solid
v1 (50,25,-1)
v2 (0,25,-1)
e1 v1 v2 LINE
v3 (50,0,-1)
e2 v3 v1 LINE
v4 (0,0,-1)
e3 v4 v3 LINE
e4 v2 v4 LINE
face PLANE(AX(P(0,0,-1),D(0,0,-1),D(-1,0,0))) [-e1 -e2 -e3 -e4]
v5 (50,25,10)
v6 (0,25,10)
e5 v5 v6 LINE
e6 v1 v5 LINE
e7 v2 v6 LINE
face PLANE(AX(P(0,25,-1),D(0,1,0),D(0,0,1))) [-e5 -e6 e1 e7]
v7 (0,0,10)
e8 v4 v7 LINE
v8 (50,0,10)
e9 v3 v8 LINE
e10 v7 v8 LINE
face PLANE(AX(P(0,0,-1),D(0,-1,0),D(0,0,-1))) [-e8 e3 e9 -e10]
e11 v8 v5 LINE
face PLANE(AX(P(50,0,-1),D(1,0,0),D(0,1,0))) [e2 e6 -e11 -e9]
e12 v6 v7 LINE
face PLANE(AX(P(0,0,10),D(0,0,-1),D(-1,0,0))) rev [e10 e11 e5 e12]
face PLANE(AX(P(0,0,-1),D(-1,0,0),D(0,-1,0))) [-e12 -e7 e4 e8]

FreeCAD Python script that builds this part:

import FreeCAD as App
import Part
import Sketcher

V = App.Vector
Q = App.Units.Quantity

doc = App.newDocument("Part")
params = doc.addObject("Spreadsheet::Sheet", "Params")
for row, (alias, value) in enumerate([
    ("sketch1_width", "50 mm"),
    ("sketch1_height", "25 mm"),
    ("pad1_length", "10 mm"),
    ("pad1_length2", "1 mm"),
], start=1):
    params.set(f"A{row}", alias)
    params.set(f"B{row}", "=" + value)
    params.setAlias(f"B{row}", alias)

body = doc.addObject("PartDesign::Body", "Body")

# Sketch on XY plane
sketch1 = body.newObject("Sketcher::SketchObject", "Sketch")
sketch1.AttachmentSupport = (doc.getObject("XY_Plane"), [""])
sketch1.MapMode = "FlatFace"
sketch1.addGeometry(Part.LineSegment(V(0, 25, 0), V(0, 0, 0)), False)
sketch1.addGeometry(Part.LineSegment(V(0, 0, 0), V(50, 0, 0)), False)
sketch1.addGeometry(Part.LineSegment(V(50, 0, 0), V(50, 25, 0)), False)
sketch1.addGeometry(Part.LineSegment(V(50, 25, 0), V(0, 25, 0)), False)
sketch1.addConstraint(Sketcher.Constraint("Coincident", 0, 2, 1, 1))
sketch1.addConstraint(Sketcher.Constraint("Coincident", 1, 2, 2, 1))
sketch1.addConstraint(Sketcher.Constraint("Coincident", 2, 2, 3, 1))
sketch1.addConstraint(Sketcher.Constraint("Coincident", 3, 2, 0, 1))
sketch1.addConstraint(Sketcher.Constraint("Vertical", 0))
sketch1.addConstraint(Sketcher.Constraint("Horizontal", 1))
sketch1.addConstraint(Sketcher.Constraint("Vertical", 2))
sketch1.addConstraint(Sketcher.Constraint("Horizontal", 3))
sketch1.addConstraint(Sketcher.Constraint("Coincident", 0, 2, -1, 1))
sketch1.addConstraint(Sketcher.Constraint("DistanceX", 1, 1, 1, 2, Q("50 mm")))
sketch1.addConstraint(Sketcher.Constraint("DistanceY", 0, 2, 0, 1, Q("25 mm")))
sketch1.setExpression("Constraints[9]", "Params.sketch1_width")
sketch1.setExpression("Constraints[10]", "Params.sketch1_height")
pad1 = body.newObject("PartDesign::Pad", "Pad")
pad1.Profile = sketch1
pad1.Type = "TwoLengths"
pad1.setExpression("Length", "Params.pad1_length")
pad1.setExpression("Length2", "Params.pad1_length2")

doc.recompute()
